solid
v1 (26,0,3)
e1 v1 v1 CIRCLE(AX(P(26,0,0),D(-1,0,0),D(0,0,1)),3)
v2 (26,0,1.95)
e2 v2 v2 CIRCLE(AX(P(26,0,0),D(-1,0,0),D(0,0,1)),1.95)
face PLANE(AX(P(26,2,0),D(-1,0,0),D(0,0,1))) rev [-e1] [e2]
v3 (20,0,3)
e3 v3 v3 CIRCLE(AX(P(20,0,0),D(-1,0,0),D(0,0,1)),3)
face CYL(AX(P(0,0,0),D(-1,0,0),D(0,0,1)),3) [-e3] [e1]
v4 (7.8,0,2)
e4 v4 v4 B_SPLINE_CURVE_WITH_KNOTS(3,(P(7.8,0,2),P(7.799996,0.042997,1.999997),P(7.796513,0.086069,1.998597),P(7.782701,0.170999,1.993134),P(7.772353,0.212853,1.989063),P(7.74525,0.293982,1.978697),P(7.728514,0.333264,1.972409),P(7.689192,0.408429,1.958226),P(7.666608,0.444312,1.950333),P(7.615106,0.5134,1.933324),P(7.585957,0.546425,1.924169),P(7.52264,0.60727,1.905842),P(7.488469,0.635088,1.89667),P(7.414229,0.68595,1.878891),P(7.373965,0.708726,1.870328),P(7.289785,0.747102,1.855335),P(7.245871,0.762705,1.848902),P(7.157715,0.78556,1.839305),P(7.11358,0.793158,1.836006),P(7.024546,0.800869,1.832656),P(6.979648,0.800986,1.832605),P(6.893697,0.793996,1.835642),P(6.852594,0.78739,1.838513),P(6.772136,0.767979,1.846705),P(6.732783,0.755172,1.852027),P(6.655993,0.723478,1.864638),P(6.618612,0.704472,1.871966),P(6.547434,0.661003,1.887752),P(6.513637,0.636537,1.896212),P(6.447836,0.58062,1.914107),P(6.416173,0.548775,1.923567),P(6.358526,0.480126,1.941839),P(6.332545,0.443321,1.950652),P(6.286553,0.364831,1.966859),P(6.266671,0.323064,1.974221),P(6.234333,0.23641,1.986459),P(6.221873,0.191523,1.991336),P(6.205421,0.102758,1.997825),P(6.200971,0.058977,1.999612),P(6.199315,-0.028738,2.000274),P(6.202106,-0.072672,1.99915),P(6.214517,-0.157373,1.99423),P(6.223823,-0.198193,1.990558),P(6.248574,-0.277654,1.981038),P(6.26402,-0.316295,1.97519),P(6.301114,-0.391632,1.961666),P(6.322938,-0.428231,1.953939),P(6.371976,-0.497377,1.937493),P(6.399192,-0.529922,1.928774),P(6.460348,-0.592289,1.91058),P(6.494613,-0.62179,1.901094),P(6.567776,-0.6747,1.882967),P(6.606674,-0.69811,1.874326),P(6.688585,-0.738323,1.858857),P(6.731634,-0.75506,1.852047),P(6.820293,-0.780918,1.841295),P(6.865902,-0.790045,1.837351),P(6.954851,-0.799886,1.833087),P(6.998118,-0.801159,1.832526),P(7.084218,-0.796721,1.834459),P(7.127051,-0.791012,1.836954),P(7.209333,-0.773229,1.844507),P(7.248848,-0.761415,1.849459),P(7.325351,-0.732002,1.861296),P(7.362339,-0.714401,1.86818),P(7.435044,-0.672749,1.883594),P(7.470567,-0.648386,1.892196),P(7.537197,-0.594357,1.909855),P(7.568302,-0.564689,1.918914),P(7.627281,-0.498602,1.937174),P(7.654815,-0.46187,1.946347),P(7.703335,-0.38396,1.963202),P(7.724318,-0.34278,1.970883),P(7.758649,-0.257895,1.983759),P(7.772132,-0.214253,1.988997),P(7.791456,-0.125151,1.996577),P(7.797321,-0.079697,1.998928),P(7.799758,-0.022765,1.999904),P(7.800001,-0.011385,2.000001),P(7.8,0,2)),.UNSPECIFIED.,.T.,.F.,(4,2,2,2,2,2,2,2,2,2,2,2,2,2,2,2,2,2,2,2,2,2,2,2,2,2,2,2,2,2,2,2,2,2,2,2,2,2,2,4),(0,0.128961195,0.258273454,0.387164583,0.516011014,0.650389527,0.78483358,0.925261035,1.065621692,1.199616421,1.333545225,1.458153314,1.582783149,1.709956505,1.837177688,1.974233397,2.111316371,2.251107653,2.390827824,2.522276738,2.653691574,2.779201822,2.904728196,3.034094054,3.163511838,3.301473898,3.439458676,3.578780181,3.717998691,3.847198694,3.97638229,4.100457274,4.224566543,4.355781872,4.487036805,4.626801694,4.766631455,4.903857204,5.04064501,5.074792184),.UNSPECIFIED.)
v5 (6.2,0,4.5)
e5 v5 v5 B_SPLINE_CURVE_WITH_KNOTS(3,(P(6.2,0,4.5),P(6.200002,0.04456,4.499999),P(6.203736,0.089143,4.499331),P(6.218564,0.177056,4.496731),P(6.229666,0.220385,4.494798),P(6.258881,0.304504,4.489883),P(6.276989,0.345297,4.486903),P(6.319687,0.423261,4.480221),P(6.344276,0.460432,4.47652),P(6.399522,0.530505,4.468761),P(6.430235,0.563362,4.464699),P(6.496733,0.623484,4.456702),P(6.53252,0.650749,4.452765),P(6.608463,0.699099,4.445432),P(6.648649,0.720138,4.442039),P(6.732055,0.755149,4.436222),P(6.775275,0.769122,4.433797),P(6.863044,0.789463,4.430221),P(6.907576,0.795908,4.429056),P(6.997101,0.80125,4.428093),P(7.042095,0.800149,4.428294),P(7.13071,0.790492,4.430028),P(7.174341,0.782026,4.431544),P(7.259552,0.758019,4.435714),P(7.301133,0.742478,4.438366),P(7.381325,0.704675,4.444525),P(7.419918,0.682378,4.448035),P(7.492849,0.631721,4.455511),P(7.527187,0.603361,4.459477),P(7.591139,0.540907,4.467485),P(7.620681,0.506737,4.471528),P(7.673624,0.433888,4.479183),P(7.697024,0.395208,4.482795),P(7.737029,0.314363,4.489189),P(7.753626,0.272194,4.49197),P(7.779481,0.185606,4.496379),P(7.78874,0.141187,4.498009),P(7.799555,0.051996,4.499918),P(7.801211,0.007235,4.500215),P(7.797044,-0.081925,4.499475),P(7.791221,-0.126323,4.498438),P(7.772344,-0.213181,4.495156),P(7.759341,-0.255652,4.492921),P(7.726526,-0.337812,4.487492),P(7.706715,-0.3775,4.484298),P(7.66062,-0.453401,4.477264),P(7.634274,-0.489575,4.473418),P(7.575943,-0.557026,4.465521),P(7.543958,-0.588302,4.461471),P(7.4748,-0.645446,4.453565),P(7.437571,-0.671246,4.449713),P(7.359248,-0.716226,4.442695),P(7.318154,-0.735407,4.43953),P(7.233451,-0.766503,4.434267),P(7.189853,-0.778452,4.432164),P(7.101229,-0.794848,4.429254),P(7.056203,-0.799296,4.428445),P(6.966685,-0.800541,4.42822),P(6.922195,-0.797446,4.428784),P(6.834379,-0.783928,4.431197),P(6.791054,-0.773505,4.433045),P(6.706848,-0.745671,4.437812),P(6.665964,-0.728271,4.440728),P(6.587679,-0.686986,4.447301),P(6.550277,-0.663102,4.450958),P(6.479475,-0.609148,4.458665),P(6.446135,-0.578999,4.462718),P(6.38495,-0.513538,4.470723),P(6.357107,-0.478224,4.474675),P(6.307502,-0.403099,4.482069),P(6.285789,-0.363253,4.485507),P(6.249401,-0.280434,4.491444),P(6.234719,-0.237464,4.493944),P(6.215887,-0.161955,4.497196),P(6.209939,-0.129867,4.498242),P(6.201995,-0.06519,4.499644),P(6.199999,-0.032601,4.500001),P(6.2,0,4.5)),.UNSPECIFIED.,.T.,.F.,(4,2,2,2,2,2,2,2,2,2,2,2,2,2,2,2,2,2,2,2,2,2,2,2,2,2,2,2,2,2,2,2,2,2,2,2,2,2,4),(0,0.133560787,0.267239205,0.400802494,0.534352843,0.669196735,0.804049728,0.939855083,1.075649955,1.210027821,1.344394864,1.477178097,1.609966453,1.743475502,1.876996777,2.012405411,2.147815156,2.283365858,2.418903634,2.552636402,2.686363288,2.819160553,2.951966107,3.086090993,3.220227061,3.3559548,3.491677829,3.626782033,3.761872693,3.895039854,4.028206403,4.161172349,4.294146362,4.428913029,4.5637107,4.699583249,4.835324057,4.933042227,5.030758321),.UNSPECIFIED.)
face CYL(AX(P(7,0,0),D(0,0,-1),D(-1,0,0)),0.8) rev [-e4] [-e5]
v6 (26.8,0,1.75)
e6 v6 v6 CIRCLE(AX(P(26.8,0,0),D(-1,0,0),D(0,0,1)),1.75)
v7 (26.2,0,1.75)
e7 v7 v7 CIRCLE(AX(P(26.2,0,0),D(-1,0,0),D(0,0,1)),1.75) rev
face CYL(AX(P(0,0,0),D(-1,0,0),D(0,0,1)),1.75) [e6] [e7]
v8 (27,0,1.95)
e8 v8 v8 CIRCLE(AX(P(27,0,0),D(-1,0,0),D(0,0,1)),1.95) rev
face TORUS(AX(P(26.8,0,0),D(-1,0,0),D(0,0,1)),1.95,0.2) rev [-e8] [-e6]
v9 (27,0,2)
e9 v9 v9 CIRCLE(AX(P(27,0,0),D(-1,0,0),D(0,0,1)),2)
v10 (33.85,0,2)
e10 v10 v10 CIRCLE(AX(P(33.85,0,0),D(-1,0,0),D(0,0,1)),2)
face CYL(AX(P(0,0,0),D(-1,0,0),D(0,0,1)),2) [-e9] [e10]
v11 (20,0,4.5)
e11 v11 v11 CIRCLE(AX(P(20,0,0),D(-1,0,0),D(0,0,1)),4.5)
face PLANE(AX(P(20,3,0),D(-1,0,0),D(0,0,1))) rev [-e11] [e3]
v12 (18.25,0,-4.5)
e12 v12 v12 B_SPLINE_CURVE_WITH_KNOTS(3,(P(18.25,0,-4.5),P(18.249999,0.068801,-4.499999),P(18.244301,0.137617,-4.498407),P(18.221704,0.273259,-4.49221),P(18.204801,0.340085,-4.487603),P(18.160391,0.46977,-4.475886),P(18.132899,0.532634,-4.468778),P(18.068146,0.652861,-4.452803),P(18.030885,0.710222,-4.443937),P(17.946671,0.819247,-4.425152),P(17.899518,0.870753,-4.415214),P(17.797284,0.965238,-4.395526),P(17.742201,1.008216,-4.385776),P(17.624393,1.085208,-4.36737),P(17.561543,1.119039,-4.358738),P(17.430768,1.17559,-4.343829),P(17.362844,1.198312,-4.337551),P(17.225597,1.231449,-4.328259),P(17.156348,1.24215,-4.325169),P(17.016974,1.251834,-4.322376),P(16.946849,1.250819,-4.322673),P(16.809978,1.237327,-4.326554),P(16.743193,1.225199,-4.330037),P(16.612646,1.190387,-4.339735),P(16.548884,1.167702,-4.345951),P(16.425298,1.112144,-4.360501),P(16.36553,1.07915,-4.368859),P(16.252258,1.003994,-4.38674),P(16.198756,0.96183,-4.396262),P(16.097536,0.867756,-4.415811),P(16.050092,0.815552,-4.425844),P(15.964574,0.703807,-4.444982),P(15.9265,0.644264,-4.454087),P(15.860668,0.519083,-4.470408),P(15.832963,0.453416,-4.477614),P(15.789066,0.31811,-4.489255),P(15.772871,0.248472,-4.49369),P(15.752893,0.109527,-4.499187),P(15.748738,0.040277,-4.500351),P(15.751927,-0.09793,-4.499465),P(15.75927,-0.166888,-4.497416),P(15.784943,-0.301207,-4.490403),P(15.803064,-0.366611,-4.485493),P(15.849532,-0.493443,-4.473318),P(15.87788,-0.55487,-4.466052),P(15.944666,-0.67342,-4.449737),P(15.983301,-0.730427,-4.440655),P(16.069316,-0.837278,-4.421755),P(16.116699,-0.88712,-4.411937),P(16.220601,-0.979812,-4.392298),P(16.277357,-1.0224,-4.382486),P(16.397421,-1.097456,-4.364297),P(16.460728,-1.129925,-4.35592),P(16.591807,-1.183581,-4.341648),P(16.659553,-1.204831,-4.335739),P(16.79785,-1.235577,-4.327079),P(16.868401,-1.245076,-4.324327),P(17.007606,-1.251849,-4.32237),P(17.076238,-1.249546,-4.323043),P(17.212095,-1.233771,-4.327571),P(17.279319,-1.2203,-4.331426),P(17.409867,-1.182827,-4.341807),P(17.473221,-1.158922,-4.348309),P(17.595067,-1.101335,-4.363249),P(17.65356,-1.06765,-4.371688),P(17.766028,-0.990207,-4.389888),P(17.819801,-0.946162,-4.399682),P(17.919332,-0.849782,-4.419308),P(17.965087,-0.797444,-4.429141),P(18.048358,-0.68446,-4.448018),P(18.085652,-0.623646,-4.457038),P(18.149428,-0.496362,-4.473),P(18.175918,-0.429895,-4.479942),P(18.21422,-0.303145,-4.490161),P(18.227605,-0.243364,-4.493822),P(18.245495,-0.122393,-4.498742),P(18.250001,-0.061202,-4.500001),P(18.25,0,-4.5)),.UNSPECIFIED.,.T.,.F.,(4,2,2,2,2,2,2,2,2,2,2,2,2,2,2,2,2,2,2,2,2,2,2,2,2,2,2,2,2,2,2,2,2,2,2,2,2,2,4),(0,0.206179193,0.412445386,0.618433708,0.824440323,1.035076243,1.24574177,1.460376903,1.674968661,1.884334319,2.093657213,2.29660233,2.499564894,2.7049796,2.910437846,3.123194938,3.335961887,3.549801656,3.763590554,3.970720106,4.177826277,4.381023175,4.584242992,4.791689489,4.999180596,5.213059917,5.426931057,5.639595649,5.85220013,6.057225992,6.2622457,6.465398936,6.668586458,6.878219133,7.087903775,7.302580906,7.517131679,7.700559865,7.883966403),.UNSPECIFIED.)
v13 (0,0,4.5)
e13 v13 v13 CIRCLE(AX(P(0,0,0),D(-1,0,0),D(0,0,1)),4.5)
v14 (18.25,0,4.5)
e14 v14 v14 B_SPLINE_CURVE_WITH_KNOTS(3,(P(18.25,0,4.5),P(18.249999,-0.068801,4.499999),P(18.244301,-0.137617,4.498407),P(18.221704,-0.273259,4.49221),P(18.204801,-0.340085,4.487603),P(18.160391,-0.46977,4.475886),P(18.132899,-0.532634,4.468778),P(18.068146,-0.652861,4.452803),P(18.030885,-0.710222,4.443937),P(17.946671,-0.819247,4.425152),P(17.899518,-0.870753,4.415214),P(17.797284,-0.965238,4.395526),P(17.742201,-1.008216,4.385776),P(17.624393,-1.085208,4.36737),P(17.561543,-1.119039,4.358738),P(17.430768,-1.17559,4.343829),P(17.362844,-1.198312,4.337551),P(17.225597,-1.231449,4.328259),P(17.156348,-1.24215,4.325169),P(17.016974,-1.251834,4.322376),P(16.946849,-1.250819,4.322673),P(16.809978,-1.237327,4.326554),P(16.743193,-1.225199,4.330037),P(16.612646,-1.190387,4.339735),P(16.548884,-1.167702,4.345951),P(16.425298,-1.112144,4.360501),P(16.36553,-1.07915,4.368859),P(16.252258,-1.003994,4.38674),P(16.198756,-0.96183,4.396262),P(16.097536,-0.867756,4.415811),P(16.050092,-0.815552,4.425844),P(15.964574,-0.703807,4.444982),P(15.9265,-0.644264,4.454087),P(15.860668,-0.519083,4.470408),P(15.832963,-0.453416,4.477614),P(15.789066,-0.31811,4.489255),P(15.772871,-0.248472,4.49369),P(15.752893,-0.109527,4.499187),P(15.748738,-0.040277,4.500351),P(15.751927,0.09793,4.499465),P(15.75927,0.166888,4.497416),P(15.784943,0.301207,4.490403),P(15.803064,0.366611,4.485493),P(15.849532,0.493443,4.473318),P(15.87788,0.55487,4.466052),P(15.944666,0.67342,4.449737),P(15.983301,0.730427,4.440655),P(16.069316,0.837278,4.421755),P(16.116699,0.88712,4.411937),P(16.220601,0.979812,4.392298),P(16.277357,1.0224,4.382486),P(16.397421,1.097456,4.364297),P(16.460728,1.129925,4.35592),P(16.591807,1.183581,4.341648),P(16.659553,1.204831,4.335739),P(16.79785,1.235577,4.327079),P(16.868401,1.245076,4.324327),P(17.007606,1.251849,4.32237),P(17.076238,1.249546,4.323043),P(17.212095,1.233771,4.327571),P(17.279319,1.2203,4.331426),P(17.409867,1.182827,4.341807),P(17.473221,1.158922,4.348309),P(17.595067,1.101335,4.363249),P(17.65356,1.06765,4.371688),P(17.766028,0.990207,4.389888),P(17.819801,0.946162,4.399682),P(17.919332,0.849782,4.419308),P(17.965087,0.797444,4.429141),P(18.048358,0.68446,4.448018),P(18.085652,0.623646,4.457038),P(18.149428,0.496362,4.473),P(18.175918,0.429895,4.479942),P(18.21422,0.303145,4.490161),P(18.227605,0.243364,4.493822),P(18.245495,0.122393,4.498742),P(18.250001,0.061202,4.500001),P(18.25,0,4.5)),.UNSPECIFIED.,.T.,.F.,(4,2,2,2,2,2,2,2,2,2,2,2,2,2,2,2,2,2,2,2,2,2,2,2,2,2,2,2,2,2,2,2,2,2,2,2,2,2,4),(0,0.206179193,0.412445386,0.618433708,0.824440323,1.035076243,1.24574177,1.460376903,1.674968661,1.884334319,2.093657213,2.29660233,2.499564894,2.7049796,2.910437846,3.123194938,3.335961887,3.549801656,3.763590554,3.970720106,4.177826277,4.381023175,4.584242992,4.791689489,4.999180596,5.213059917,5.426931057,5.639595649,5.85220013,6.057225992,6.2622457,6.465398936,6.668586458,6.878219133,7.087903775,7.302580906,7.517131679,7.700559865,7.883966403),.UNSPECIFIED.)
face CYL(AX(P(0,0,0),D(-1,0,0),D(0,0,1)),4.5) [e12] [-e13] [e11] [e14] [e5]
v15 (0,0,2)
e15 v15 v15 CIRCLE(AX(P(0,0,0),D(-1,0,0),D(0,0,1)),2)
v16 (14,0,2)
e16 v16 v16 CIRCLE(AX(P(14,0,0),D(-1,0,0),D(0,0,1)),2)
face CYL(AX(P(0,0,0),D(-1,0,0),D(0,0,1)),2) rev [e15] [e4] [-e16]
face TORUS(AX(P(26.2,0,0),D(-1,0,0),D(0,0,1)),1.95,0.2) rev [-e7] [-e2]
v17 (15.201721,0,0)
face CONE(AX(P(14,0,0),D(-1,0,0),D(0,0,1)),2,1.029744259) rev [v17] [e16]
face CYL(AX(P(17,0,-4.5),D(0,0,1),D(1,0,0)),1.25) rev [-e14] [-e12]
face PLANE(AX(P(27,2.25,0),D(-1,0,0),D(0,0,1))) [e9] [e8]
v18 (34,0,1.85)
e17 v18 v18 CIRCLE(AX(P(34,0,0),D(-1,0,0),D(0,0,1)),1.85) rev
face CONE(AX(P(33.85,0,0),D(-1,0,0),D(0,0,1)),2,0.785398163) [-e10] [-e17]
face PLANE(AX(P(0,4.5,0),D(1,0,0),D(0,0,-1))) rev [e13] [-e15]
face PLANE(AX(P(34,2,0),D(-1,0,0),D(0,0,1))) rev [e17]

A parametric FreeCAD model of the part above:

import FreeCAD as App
import Part
import Sketcher

V = App.Vector
Q = App.Units.Quantity


def edges_at(feature, points):
    """Names of the edges that pass closest to the given points."""
    edges = feature.Shape.Edges
    near = lambda p: min(range(len(edges)), key=lambda i: edges[i].distToShape(Part.Vertex(*p))[0])
    return sorted({f"Edge{near(p) + 1}" for p in points})

doc = App.newDocument("Part")
params = doc.addObject("Spreadsheet::Sheet", "Params")
for row, (alias, value) in enumerate([
    ("sketch1_width", "14 mm"),
    ("sketch1_width2", "8 mm"),
    ("sketch1_width3", "6 mm"),
    ("sketch1_width4", "20 mm"),
    ("sketch1_height", "2 mm"),
    ("revolution_angle", "360 deg"),
    ("chamfer_size", "0.15 mm"),
    ("sketch2_width", "1 mm"),
    ("sketch2_height", "0.5 mm"),
    ("groove_angle", "360 deg"),
    ("fillet_radius", "0.2 mm"),
    ("sketch3_width", "0.8 mm"),
    ("sketch3_height", "4.5 mm"),
    ("groove2_angle", "360 deg"),
    ("sketch4_diameter", "2.5 mm"),
], start=1):
    params.set(f"A{row}", alias)
    params.set(f"B{row}", "=" + value)
    params.setAlias(f"B{row}", alias)

body = doc.addObject("PartDesign::Body", "Body")

sketch1 = body.newObject("Sketcher::SketchObject", "Sketch")
sketch1.AttachmentSupport = (doc.getObject("XY_Plane"), [""])
sketch1.MapMode = "FlatFace"
sketch1.addGeometry(Part.LineSegment(V(0, 4.5, 0), V(0, 2, 0)), False)
sketch1.addGeometry(Part.LineSegment(V(0, 2, 0), V(14, 2, 0)), False)
sketch1.addGeometry(Part.LineSegment(V(14, 2, 0), V(15.2, 0, 0)), False)
sketch1.addGeometry(Part.LineSegment(V(15.2, 0, 0), V(34, 0, 0)), False)
sketch1.addGeometry(Part.LineSegment(V(34, 0, 0), V(34, 2, 0)), False)
sketch1.addGeometry(Part.LineSegment(V(34, 2, 0), V(26, 2, 0)), False)
sketch1.addGeometry(Part.LineSegment(V(26, 2, 0), V(26, 3, 0)), False)
sketch1.addGeometry(Part.LineSegment(V(26, 3, 0), V(20, 3, 0)), False)
sketch1.addGeometry(Part.LineSegment(V(20, 3, 0), V(20, 4.5, 0)), False)
sketch1.addGeometry(Part.LineSegment(V(20, 4.5, 0), V(0, 4.5, 0)), False)
sketch1.addConstraint(Sketcher.Constraint("Coincident", 0, 2, 1, 1))
sketch1.addConstraint(Sketcher.Constraint("Coincident", 1, 2, 2, 1))
sketch1.addConstraint(Sketcher.Constraint("Coincident", 2, 2, 3, 1))
sketch1.addConstraint(Sketcher.Constraint("Coincident", 3, 2, 4, 1))
sketch1.addConstraint(Sketcher.Constraint("Coincident", 4, 2, 5, 1))
sketch1.addConstraint(Sketcher.Constraint("Coincident", 5, 2, 6, 1))
sketch1.addConstraint(Sketcher.Constraint("Coincident", 6, 2, 7, 1))
sketch1.addConstraint(Sketcher.Constraint("Coincident", 7, 2, 8, 1))
sketch1.addConstraint(Sketcher.Constraint("Coincident", 8, 2, 9, 1))
sketch1.addConstraint(Sketcher.Constraint("Coincident", 9, 2, 0, 1))
sketch1.addConstraint(Sketcher.Constraint("Vertical", 0))
sketch1.addConstraint(Sketcher.Constraint("Horizontal", 1))
sketch1.addConstraint(Sketcher.Constraint("Horizontal", 3))
sketch1.addConstraint(Sketcher.Constraint("Vertical", 4))
sketch1.addConstraint(Sketcher.Constraint("Horizontal", 5))
sketch1.addConstraint(Sketcher.Constraint("Vertical", 6))
sketch1.addConstraint(Sketcher.Constraint("Horizontal", 7))
sketch1.addConstraint(Sketcher.Constraint("Vertical", 8))
sketch1.addConstraint(Sketcher.Constraint("Horizontal", 9))
sketch1.addConstraint(Sketcher.Constraint("PointOnObject", 0, 2, -2))
sketch1.addConstraint(Sketcher.Constraint("PointOnObject", 2, 2, -1))
sketch1.addConstraint(Sketcher.Constraint("Horizontal", 1, 2, 4, 2))
sketch1.addConstraint(Sketcher.Constraint("DistanceX", 1, 1, 1, 2, 14.0))
sketch1.addConstraint(Sketcher.Constraint("DistanceX", 5, 2, 5, 1, 8.0))
sketch1.addConstraint(Sketcher.Constraint("DistanceX", 7, 2, 7, 1, 6.0))
sketch1.addConstraint(Sketcher.Constraint("DistanceX", 9, 2, 9, 1, 20.0))
sketch1.addConstraint(Sketcher.Constraint("DistanceY", 4, 1, 4, 2, 2.0))
sketch1.addConstraint(Sketcher.Constraint("DistanceY", 6, 1, 6, 2, 1.0))
sketch1.addConstraint(Sketcher.Constraint("Angle", 2, Q("-59 deg")))
sketch1.addConstraint(Sketcher.Constraint("DistanceY", 0, 2, 0, 1, 2.5))
sketch1.setExpression("Constraints[22]", "Params.sketch1_width")
sketch1.setExpression("Constraints[23]", "Params.sketch1_width2")
sketch1.setExpression("Constraints[24]", "Params.sketch1_width3")
sketch1.setExpression("Constraints[25]", "Params.sketch1_width4")
sketch1.setExpression("Constraints[26]", "Params.sketch1_height")
revolution = body.newObject("PartDesign::Revolution", "Revolution")
revolution.Profile = sketch1
revolution.ReferenceAxis = (sketch1, ["H_Axis"])
revolution.setExpression("Angle", "Params.revolution_angle")
doc.recompute()

chamfer = body.newObject("PartDesign::Chamfer", "Chamfer")
chamfer.Base = (revolution, edges_at(revolution, [(34, -2, 0)]))
chamfer.setExpression("Size", "Params.chamfer_size")

sketch2 = body.newObject("Sketcher::SketchObject", "Sketch001")
sketch2.AttachmentSupport = (doc.getObject("XY_Plane"), [""])
sketch2.MapMode = "FlatFace"
sketch2.addGeometry(Part.LineSegment(V(26, 2.2, 0), V(26, 1.8, 0)), False)
sketch2.addGeometry(Part.LineSegment(V(26, 1.8, 0), V(27, 1.8, 0)), False)
sketch2.addGeometry(Part.LineSegment(V(27, 1.8, 0), V(27, 2.2, 0)), False)
sketch2.addGeometry(Part.LineSegment(V(27, 2.2, 0), V(26, 2.2, 0)), False)
sketch2.addConstraint(Sketcher.Constraint("Coincident", 0, 2, 1, 1))
sketch2.addConstraint(Sketcher.Constraint("Coincident", 1, 2, 2, 1))
sketch2.addConstraint(Sketcher.Constraint("Coincident", 2, 2, 3, 1))
sketch2.addConstraint(Sketcher.Constraint("Coincident", 3, 2, 0, 1))
sketch2.addConstraint(Sketcher.Constraint("Vertical", 0))
sketch2.addConstraint(Sketcher.Constraint("Horizontal", 1))
sketch2.addConstraint(Sketcher.Constraint("Vertical", 2))
sketch2.addConstraint(Sketcher.Constraint("Horizontal", 3))
sketch2.addConstraint(Sketcher.Constraint("DistanceX", 1, 1, 1, 2, 1.0))
sketch2.addConstraint(Sketcher.Constraint("DistanceY", 0, 2, 0, 1, 0.5))
sketch2.addConstraint(Sketcher.Constraint("DistanceX", -1, 1, 0, 2, 26.0))
sketch2.addConstraint(Sketcher.Constraint("DistanceY", -1, 1, 0, 2, 1.75))
sketch2.setExpression("Constraints[8]", "Params.sketch2_width")
sketch2.setExpression("Constraints[9]", "Params.sketch2_height")
groove = body.newObject("PartDesign::Groove", "Groove")
groove.Profile = sketch2
groove.ReferenceAxis = (sketch2, ["H_Axis"])
groove.setExpression("Angle", "Params.groove_angle")
doc.recompute()

fillet = body.newObject("PartDesign::Fillet", "Fillet")
fillet.Base = (groove, edges_at(groove, [(27, -1.75, 0), (26, -1.75, 0)]))
fillet.setExpression("Radius", "Params.fillet_radius")

sketch3 = body.newObject("Sketcher::SketchObject", "Sketch002")
sketch3.AttachmentSupport = (doc.getObject("YZ_Plane"), [""])
sketch3.MapMode = "FlatFace"
sketch3.AttachmentOffset = App.Placement(V(0, 0, 7), App.Rotation())
sketch3.addGeometry(Part.LineSegment(V(0, 4.5, 0), V(0, 0, 0)), False)
sketch3.addGeometry(Part.LineSegment(V(0, 0, 0), V(0.8, 0, 0)), False)
sketch3.addGeometry(Part.LineSegment(V(0.8, 0, 0), V(0.8, 4.5, 0)), False)
sketch3.addGeometry(Part.LineSegment(V(0.8, 4.5, 0), V(0, 4.5, 0)), False)
sketch3.addConstraint(Sketcher.Constraint("Coincident", 0, 2, 1, 1))
sketch3.addConstraint(Sketcher.Constraint("Coincident", 1, 2, 2, 1))
sketch3.addConstraint(Sketcher.Constraint("Coincident", 2, 2, 3, 1))
sketch3.addConstraint(Sketcher.Constraint("Coincident", 3, 2, 0, 1))
sketch3.addConstraint(Sketcher.Constraint("Vertical", 0))
sketch3.addConstraint(Sketcher.Constraint("Horizontal", 1))
sketch3.addConstraint(Sketcher.Constraint("Vertical", 2))
sketch3.addConstraint(Sketcher.Constraint("Horizontal", 3))
sketch3.addConstraint(Sketcher.Constraint("Coincident", 0, 2, -1, 1))
sketch3.addConstraint(Sketcher.Constraint("DistanceX", 1, 1, 1, 2, 0.8))
sketch3.addConstraint(Sketcher.Constraint("DistanceY", 0, 2, 0, 1, 4.5))
sketch3.setExpression("Constraints[9]", "Params.sketch3_width")
sketch3.setExpression("Constraints[10]", "Params.sketch3_height")
groove2 = body.newObject("PartDesign::Groove", "Groove001")
groove2.Profile = sketch3
groove2.ReferenceAxis = (sketch3, ["V_Axis"])
groove2.setExpression("Angle", "Params.groove2_angle")

sketch4 = body.newObject("Sketcher::SketchObject", "Sketch003")
sketch4.AttachmentSupport = (doc.getObject("XY_Plane"), [""])
sketch4.MapMode = "FlatFace"
sketch4.addGeometry(Part.Circle(V(17, 0, 0), V(0, 0, 1), 1.2), False)
sketch4.addConstraint(Sketcher.Constraint("PointOnObject", 0, 3, -1))
sketch4.addConstraint(Sketcher.Constraint("Diameter", 0, 2.5))
sketch4.addConstraint(Sketcher.Constraint("DistanceX", -1, 1, 0, 3, 17.0))
sketch4.setExpression("Constraints[1]", "Params.sketch4_diameter")
pocket1 = body.newObject("PartDesign::Pocket", "Pocket")
pocket1.Profile = sketch4
pocket1.Type = "ThroughAll"
pocket1.Midplane = True

doc.recompute()
